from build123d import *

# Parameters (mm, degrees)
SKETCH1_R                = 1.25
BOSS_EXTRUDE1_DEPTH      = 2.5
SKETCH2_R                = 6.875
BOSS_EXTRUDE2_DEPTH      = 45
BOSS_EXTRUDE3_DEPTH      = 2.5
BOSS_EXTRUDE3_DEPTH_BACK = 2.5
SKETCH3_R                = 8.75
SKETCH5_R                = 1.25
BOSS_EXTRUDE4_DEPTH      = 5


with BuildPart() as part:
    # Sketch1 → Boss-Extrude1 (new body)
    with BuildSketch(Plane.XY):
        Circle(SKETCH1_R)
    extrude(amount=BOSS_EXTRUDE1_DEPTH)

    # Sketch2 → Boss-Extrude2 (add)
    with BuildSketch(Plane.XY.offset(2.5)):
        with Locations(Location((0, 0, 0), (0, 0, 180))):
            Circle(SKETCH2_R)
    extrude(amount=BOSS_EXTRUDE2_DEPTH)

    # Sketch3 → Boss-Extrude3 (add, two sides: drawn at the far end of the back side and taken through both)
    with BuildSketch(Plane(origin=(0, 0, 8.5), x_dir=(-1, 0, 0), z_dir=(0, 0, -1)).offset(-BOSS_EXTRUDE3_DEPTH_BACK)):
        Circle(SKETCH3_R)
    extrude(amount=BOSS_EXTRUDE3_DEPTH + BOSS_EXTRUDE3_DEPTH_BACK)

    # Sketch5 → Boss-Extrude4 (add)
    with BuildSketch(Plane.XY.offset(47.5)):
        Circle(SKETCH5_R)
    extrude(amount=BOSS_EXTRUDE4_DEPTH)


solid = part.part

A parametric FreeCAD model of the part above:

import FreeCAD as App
import Part
import Sketcher
from FreeCAD import Vector
Q = App.Units.Quantity

doc = App.newDocument("Part")
body = doc.addObject("PartDesign::Body", "Body")

sketch1 = body.newObject("Sketcher::SketchObject", "Sketch")
sketch1.AttachmentSupport = (doc.getObject("XY_Plane"), [""])
sketch1.MapMode = "FlatFace"
sketch1.addGeometry(Part.Circle(Vector(0, 0, 0), Vector(0, 0, 1), 1.25), False)
sketch1.addConstraint([
    Sketcher.Constraint("Coincident", 0, 3, -1, 1),
    Sketcher.Constraint("Diameter", 0, Q("2.5 mm")),
])
pad1 = body.newObject("PartDesign::Pad", "Pad")
pad1.Profile = sketch1
pad1.Length = 2.5

sketch2 = body.newObject("Sketcher::SketchObject", "Sketch001")
sketch2.AttachmentSupport = (doc.getObject("XY_Plane"), [""])
sketch2.MapMode = "FlatFace"
sketch2.AttachmentOffset = App.Placement(Vector(0, 0, 2.5), App.Rotation())
sketch2.addGeometry(Part.Circle(Vector(0, 0, 0), Vector(0, 0, 1), 6.875), False)
sketch2.addConstraint([
    Sketcher.Constraint("Coincident", 0, 3, -1, 1),
    Sketcher.Constraint("Diameter", 0, Q("13.75 mm")),
])
pad2 = body.newObject("PartDesign::Pad", "Pad001")
pad2.Profile = sketch2
pad2.Length = 45

sketch3 = body.newObject("Sketcher::SketchObject", "Sketch002")
sketch3.AttachmentSupport = (doc.getObject("XY_Plane"), [""])
sketch3.MapMode = "FlatFace"
sketch3.AttachmentOffset = App.Placement(Vector(0, 0, 8.5), App.Rotation())
sketch3.addGeometry(Part.Circle(Vector(0, 0, 0), Vector(0, 0, 1), 8.75), False)
sketch3.addConstraint([
    Sketcher.Constraint("Coincident", 0, 3, -1, 1),
    Sketcher.Constraint("Diameter", 0, Q("17.5 mm")),
])
pad3 = body.newObject("PartDesign::Pad", "Pad002")
pad3.Profile = sketch3
pad3.Type = "TwoLengths"
pad3.Length = 2.5
pad3.Length2 = 2.5
pad3.Reversed = True

sketch4 = body.newObject("Sketcher::SketchObject", "Sketch003")
sketch4.AttachmentSupport = (doc.getObject("XY_Plane"), [""])
sketch4.MapMode = "FlatFace"
sketch4.AttachmentOffset = App.Placement(Vector(0, 0, 47.5), App.Rotation())
sketch4.addGeometry(Part.Circle(Vector(0, 0, 0), Vector(0, 0, 1), 1.25), False)
sketch4.addConstraint([
    Sketcher.Constraint("Coincident", 0, 3, -1, 1),
    Sketcher.Constraint("Diameter", 0, Q("2.5 mm")),
])
pad4 = body.newObject("PartDesign::Pad", "Pad003")
pad4.Profile = sketch4
pad4.Length = 5

doc.recompute()
